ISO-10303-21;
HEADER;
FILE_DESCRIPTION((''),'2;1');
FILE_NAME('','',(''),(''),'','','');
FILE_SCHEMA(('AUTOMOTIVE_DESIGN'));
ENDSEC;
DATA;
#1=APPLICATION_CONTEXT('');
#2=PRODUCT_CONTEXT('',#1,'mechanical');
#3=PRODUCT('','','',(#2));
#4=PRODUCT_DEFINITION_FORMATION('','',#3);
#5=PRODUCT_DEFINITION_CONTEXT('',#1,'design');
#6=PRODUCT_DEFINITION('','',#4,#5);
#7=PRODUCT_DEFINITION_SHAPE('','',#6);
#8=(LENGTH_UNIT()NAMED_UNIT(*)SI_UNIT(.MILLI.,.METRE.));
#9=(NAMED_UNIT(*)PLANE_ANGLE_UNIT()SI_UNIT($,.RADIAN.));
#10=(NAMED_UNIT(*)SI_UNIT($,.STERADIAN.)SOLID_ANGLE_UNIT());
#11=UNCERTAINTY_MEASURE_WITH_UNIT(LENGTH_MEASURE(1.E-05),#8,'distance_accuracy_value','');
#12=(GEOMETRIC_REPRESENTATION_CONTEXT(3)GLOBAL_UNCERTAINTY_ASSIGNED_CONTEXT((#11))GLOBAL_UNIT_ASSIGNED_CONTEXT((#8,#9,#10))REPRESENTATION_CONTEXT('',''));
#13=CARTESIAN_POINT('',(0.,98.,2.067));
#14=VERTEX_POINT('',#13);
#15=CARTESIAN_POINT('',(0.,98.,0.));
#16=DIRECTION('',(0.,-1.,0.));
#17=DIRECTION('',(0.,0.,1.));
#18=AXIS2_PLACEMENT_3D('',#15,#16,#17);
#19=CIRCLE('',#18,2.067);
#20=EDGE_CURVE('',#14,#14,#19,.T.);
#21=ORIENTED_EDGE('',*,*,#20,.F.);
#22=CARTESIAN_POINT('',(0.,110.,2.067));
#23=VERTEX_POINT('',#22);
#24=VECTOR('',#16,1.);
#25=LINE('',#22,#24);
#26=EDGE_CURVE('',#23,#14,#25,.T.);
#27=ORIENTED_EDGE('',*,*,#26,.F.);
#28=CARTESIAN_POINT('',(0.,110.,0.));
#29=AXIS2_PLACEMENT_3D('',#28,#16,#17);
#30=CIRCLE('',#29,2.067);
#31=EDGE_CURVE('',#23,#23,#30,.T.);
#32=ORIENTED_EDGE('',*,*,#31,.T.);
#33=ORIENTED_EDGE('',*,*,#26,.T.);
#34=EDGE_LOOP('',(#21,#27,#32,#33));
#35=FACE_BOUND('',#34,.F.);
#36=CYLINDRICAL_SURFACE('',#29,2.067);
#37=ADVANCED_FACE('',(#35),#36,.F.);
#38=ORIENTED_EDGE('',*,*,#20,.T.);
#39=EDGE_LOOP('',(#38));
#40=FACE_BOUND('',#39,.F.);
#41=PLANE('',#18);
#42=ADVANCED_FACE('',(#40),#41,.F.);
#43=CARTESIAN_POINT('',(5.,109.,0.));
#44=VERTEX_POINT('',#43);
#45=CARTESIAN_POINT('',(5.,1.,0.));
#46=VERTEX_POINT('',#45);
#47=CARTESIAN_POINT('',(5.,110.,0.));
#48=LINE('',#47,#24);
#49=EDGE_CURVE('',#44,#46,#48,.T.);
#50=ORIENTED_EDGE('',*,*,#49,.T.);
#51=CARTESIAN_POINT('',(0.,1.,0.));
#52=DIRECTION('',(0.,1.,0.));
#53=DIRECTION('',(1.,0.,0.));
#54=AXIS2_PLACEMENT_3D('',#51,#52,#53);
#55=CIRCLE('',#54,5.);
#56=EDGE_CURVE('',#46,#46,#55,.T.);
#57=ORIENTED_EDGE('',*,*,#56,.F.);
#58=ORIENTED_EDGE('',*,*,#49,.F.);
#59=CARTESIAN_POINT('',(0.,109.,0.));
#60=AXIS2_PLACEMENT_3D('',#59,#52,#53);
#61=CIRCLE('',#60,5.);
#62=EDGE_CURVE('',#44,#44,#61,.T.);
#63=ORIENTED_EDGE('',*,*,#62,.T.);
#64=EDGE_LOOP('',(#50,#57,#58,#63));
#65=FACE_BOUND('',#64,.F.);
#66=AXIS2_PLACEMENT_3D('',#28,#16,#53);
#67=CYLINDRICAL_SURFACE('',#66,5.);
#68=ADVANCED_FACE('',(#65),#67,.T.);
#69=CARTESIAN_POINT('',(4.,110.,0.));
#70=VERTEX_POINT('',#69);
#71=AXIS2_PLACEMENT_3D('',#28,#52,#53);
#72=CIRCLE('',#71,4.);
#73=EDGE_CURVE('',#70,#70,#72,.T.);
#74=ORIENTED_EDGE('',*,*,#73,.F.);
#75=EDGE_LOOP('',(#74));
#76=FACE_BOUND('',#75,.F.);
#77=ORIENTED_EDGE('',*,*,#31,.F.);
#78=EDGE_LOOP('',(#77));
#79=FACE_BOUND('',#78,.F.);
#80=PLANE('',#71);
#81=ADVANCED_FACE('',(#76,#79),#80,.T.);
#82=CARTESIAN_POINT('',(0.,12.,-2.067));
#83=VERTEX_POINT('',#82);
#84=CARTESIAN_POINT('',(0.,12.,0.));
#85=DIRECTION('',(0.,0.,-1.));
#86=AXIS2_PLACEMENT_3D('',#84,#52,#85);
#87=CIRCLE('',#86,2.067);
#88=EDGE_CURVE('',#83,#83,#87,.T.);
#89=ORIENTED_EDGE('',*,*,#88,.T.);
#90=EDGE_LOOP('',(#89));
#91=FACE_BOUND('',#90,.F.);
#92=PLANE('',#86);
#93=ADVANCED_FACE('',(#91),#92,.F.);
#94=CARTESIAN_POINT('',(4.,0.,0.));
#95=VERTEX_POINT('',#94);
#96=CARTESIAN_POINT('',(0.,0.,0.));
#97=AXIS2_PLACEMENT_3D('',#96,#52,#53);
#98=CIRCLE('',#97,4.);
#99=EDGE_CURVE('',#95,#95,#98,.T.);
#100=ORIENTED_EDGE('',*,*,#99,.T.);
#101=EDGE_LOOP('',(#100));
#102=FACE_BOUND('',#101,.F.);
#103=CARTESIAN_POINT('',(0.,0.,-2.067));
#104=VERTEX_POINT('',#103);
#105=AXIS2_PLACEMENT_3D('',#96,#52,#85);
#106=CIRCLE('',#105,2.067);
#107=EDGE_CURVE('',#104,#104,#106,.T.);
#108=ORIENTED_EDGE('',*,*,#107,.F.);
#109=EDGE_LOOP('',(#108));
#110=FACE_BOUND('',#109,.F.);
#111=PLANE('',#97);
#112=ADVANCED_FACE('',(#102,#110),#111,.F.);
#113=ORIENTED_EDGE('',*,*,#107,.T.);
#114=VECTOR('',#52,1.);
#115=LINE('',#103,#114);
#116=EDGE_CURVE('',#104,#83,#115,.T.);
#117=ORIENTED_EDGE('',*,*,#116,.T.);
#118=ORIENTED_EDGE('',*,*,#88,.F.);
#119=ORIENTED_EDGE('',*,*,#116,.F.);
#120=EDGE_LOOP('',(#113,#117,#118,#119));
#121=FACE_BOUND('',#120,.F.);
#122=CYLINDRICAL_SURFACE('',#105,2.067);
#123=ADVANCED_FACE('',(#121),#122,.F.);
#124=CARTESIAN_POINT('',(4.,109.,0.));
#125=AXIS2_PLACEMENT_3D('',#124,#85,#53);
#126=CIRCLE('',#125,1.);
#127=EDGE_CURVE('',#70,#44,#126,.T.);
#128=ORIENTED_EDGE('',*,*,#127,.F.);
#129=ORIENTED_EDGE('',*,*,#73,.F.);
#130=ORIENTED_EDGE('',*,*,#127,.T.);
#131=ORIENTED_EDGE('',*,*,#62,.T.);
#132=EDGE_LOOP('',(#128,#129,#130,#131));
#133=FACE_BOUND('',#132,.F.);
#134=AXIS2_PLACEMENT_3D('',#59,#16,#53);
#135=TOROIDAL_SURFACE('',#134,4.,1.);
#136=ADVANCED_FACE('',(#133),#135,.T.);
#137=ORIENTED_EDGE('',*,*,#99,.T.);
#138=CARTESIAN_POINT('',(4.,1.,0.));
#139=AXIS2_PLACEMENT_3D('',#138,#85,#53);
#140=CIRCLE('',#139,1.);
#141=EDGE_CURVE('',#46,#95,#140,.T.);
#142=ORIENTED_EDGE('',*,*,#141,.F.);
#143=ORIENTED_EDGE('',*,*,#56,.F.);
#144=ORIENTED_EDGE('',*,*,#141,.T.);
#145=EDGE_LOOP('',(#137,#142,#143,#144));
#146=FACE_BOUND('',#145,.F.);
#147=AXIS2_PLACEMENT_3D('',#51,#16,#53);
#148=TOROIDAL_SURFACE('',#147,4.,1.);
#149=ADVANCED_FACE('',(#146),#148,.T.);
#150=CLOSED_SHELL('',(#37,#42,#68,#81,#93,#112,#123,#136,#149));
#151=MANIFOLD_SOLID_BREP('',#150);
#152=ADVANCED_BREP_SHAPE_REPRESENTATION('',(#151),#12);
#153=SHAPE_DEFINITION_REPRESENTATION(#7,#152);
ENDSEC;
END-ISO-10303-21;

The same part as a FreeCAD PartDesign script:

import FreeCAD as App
import Part
import Sketcher
Q = App.Units.Quantity


def edges_at(feature, points):
    """Names of the edges that pass closest to the given points."""
    edges = feature.Shape.Edges
    near = lambda p: min(range(len(edges)), key=lambda i: edges[i].distToShape(Part.Vertex(*p))[0])
    return sorted({f"Edge{near(p) + 1}" for p in points})


def add_polygon(sketch, points):
    """Adds a closed chain of lines whose ends are joined by coincident constraints."""
    first, n = sketch.GeometryCount, len(points)
    for a, b in zip(points, points[1:] + points[:1]):
        sketch.addGeometry(Part.LineSegment(App.Vector(*a, 0), App.Vector(*b, 0)), False)
    for i in range(n):
        sketch.addConstraint(Sketcher.Constraint("Coincident", first + i, 2, first + (i + 1) % n, 1))

doc = App.newDocument("Part")
params = doc.addObject("Spreadsheet::Sheet", "Params")
for row, (alias, value) in enumerate([
    ("sketch1_height", "110 mm"),
    ("sketch1_width", "5 mm"),
    ("revolution_angle", "360 deg"),
    ("fillet_radius", "1 mm"),
    ("hole_diameter", "4.134 mm"),
    ("hole_depth", "12 mm"),
    ("hole2_diameter", "4.134 mm"),
    ("hole2_depth", "12 mm"),
], start=1):
    params.set(f"A{row}", alias)
    params.set(f"B{row}", "=" + value)
    params.setAlias(f"B{row}", alias)

body = doc.addObject("PartDesign::Body", "Body")

# Sketch on XY plane
sketch1 = body.newObject("Sketcher::SketchObject", "Sketch")
sketch1.AttachmentSupport = (doc.getObject("XY_Plane"), [""])
sketch1.MapMode = "FlatFace"
add_polygon(sketch1, [(0, 110), (0, 0), (5, 0), (5, 110)])  # lines 0-3
sketch1.addConstraint(Sketcher.Constraint("Vertical", 0))
sketch1.addConstraint(Sketcher.Constraint("Horizontal", 1))
sketch1.addConstraint(Sketcher.Constraint("Vertical", 2))
sketch1.addConstraint(Sketcher.Constraint("Horizontal", 3))
sketch1.addConstraint(Sketcher.Constraint("Coincident", 0, 2, -1, 1))
sketch1.addConstraint(Sketcher.Constraint("DistanceY", 0, 2, 0, 1, Q("110 mm")))
sketch1.addConstraint(Sketcher.Constraint("DistanceX", 1, 1, 1, 2, Q("5 mm")))
sketch1.setExpression("Constraints[9]", "Params.sketch1_height")
sketch1.setExpression("Constraints[10]", "Params.sketch1_width")
revolution = body.newObject("PartDesign::Revolution", "Revolution")
revolution.Profile = sketch1
revolution.ReferenceAxis = (sketch1, ["V_Axis"])
revolution.setExpression("Angle", "Params.revolution_angle")
doc.recompute()

fillet = body.newObject("PartDesign::Fillet", "Fillet")
fillet.Base = (revolution, edges_at(revolution, [(-5, 0, 0), (-5, 110, 0)]))
fillet.setExpression("Radius", "Params.fillet_radius")

# Sketch on XZ plane
sketch2 = body.newObject("Sketcher::SketchObject", "Sketch001")
sketch2.AttachmentSupport = (doc.getObject("XZ_Plane"), [""])
sketch2.MapMode = "FlatFace"
sketch2.AttachmentOffset = App.Placement(App.Vector(0, 0, -110), App.Rotation())
sketch2.addGeometry(Part.Circle(App.Vector(0, 0, 0), App.Vector(0, 0, 1), 2.1), False)
sketch2.addConstraint(Sketcher.Constraint("Coincident", 0, 3, -1, 1))
sketch2.addConstraint(Sketcher.Constraint("Diameter", 0, Q("4.134 mm")))
doc.recompute()
hole = body.newObject("PartDesign::Hole", "Hole")
hole.Profile = sketch2
hole.ThreadType = "None"
hole.setExpression("Diameter", "Params.hole_diameter")
hole.DepthType = "Dimension"
hole.setExpression("Depth", "Params.hole_depth")
hole.DrillPoint = "Flat"
hole.Reversed = True

# Sketch on XZ plane
sketch3 = body.newObject("Sketcher::SketchObject", "Sketch002")
sketch3.AttachmentSupport = (doc.getObject("XZ_Plane"), [""])
sketch3.MapMode = "FlatFace"
sketch3.addGeometry(Part.Circle(App.Vector(0, 0, 0), App.Vector(0, 0, 1), 2.1), False)
sketch3.addConstraint(Sketcher.Constraint("Coincident", 0, 3, -1, 1))
sketch3.addConstraint(Sketcher.Constraint("Diameter", 0, Q("4.134 mm")))
doc.recompute()
hole2 = body.newObject("PartDesign::Hole", "Hole001")
hole2.Profile = sketch3
hole2.ThreadType = "None"
hole2.setExpression("Diameter", "Params.hole2_diameter")
hole2.DepthType = "Dimension"
hole2.setExpression("Depth", "Params.hole2_depth")
hole2.DrillPoint = "Flat"

doc.recompute()
